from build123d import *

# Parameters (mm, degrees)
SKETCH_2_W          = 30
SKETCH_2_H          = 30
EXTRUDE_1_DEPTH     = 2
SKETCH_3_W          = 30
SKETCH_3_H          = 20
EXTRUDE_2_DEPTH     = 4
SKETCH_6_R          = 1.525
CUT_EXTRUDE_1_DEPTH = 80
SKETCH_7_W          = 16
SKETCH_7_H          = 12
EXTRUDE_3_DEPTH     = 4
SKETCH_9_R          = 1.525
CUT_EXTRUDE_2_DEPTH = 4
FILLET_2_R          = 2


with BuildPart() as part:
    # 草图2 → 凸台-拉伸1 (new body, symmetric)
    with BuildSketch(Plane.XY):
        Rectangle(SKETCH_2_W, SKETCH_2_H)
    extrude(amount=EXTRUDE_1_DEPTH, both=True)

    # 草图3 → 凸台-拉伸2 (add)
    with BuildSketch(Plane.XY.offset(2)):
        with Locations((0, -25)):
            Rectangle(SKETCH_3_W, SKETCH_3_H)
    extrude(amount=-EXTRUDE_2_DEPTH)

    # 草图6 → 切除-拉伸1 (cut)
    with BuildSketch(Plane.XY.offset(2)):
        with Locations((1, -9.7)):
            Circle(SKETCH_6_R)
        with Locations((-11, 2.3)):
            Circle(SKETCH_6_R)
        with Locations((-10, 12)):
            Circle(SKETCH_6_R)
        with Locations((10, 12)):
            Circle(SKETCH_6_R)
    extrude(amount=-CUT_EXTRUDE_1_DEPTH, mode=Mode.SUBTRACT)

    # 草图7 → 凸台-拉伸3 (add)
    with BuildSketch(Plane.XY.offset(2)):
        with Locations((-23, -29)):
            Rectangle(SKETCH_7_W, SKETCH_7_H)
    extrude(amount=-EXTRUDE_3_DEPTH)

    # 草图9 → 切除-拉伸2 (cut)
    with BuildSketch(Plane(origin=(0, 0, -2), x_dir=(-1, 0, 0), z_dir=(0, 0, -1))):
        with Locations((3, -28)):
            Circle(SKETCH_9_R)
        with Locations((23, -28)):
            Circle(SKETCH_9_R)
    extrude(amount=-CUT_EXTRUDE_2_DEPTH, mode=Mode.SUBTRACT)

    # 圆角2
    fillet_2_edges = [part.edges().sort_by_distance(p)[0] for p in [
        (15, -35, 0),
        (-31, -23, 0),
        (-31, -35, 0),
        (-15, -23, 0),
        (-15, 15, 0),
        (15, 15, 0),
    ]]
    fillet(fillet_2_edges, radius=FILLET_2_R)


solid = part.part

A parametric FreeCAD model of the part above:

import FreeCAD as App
import Part
import Sketcher
Q = App.Units.Quantity


def edges_at(feature, points):
    """Names of the edges that pass closest to the given points."""
    edges = feature.Shape.Edges
    near = lambda p: min(range(len(edges)), key=lambda i: edges[i].distToShape(Part.Vertex(*p))[0])
    return sorted({f"Edge{near(p) + 1}" for p in points})


def add_polygon(sketch, points):
    """Adds a closed chain of lines whose ends are joined by coincident constraints."""
    first, n = sketch.GeometryCount, len(points)
    for a, b in zip(points, points[1:] + points[:1]):
        sketch.addGeometry(Part.LineSegment(App.Vector(*a, 0), App.Vector(*b, 0)), False)
    for i in range(n):
        sketch.addConstraint(Sketcher.Constraint("Coincident", first + i, 2, first + (i + 1) % n, 1))

doc = App.newDocument("Part")
params = doc.addObject("Spreadsheet::Sheet", "Params")
for row, (alias, value) in enumerate([
    ("sketch1_width", "30 mm"),
    ("pad1_length", "4 mm"),
    ("sketch2_width", "30 mm"),
    ("sketch2_height", "20 mm"),
    ("pad2_length", "4 mm"),
    ("sketch3_diameter", "3.05 mm"),
    ("pocket1_length", "80 mm"),
    ("sketch4_width", "16 mm"),
    ("sketch4_height", "12 mm"),
    ("pad3_length", "4 mm"),
    ("sketch5_diameter", "3.05 mm"),
    ("pocket2_length", "4 mm"),
    ("fillet_radius", "2 mm"),
], start=1):
    params.set(f"A{row}", alias)
    params.set(f"B{row}", "=" + value)
    params.setAlias(f"B{row}", alias)

body = doc.addObject("PartDesign::Body", "Body")

sketch1 = doc.addObject("Sketcher::SketchObject", "Sketch")
body.addObject(sketch1)
sketch1.AttachmentSupport = (doc.XY_Plane, [""])
sketch1.MapMode = "FlatFace"
add_polygon(sketch1, [(-15, 15), (-15, -15), (15, -15), (15, 15)])
sketch1.addConstraint(Sketcher.Constraint("Vertical", 0))
sketch1.addConstraint(Sketcher.Constraint("Horizontal", 1))
sketch1.addConstraint(Sketcher.Constraint("Vertical", 2))
sketch1.addConstraint(Sketcher.Constraint("Horizontal", 3))
sketch1.addConstraint(Sketcher.Constraint("Symmetric", 0, 2, 2, 2, -1, 1))
sketch1.addConstraint(Sketcher.Constraint("Equal", 3, 0))
sketch1.addConstraint(Sketcher.Constraint("DistanceX", 1, 1, 1, 2, Q("30 mm")))
sketch1.setExpression("Constraints[10]", "Params.sketch1_width")
pad1 = doc.addObject("PartDesign::Pad", "Pad")
body.addObject(pad1)
pad1.Profile = sketch1
pad1.setExpression("Length", "Params.pad1_length")
pad1.Midplane = True

sketch2 = doc.addObject("Sketcher::SketchObject", "Sketch001")
body.addObject(sketch2)
sketch2.AttachmentSupport = (doc.XY_Plane, [""])
sketch2.MapMode = "FlatFace"
sketch2.AttachmentOffset = App.Placement(App.Vector(0, 0, 2), App.Rotation())
add_polygon(sketch2, [(-15, -15), (-15, -35), (15, -35), (15, -15)])
sketch2.addConstraint(Sketcher.Constraint("Vertical", 0))
sketch2.addConstraint(Sketcher.Constraint("Horizontal", 1))
sketch2.addConstraint(Sketcher.Constraint("Vertical", 2))
sketch2.addConstraint(Sketcher.Constraint("Horizontal", 3))
sketch2.addConstraint(Sketcher.Constraint("DistanceX", 1, 1, 1, 2, Q("30 mm")))
sketch2.addConstraint(Sketcher.Constraint("DistanceY", 0, 2, 0, 1, Q("20 mm")))
sketch2.addConstraint(Sketcher.Constraint("DistanceX", 0, 2, -1, 1, Q("15 mm")))
sketch2.addConstraint(Sketcher.Constraint("DistanceY", 0, 2, -1, 1, Q("35 mm")))
sketch2.setExpression("Constraints[8]", "Params.sketch2_width")
sketch2.setExpression("Constraints[9]", "Params.sketch2_height")
pad2 = doc.addObject("PartDesign::Pad", "Pad001")
body.addObject(pad2)
pad2.Profile = sketch2
pad2.setExpression("Length", "Params.pad2_length")
pad2.Reversed = True

sketch3 = doc.addObject("Sketcher::SketchObject", "Sketch002")
body.addObject(sketch3)
sketch3.AttachmentSupport = (doc.XY_Plane, [""])
sketch3.MapMode = "FlatFace"
sketch3.AttachmentOffset = App.Placement(App.Vector(0, 0, 2), App.Rotation())
sketch3.addGeometry(Part.Circle(App.Vector(1, -9.7, 0), App.Vector(0, 0, 1), 1.525), False)
sketch3.addGeometry(Part.Circle(App.Vector(-11, 2.3, 0), App.Vector(0, 0, 1), 1.525), False)
sketch3.addGeometry(Part.Circle(App.Vector(-10, 12, 0), App.Vector(0, 0, 1), 1.525), False)
sketch3.addGeometry(Part.Circle(App.Vector(10, 12, 0), App.Vector(0, 0, 1), 1.525), False)
sketch3.addConstraint(Sketcher.Constraint("Equal", 0, 1))
sketch3.addConstraint(Sketcher.Constraint("Equal", 1, 2))
sketch3.addConstraint(Sketcher.Constraint("Equal", 2, 3))
sketch3.addConstraint(Sketcher.Constraint("Symmetric", 2, 3, 3, 3, -2))
sketch3.addConstraint(Sketcher.Constraint("Diameter", 0, Q("3.05 mm")))
sketch3.addConstraint(Sketcher.Constraint("DistanceX", -1, 1, 0, 3, Q("1 mm")))
sketch3.addConstraint(Sketcher.Constraint("DistanceX", 1, 3, -1, 1, Q("11 mm")))
sketch3.addConstraint(Sketcher.Constraint("DistanceX", 2, 3, -1, 1, Q("10 mm")))
sketch3.addConstraint(Sketcher.Constraint("DistanceY", -1, 1, 2, 3, Q("12 mm")))
sketch3.addConstraint(Sketcher.Constraint("DistanceY", 0, 3, 1, 3, Q("12 mm")))
sketch3.addConstraint(Sketcher.Constraint("DistanceY", 0, 3, -1, 1, Q("9.7 mm")))
sketch3.setExpression("Constraints[4]", "Params.sketch3_diameter")
pocket1 = doc.addObject("PartDesign::Pocket", "Pocket")
body.addObject(pocket1)
pocket1.Profile = sketch3
pocket1.setExpression("Length", "Params.pocket1_length")

sketch4 = doc.addObject("Sketcher::SketchObject", "Sketch003")
body.addObject(sketch4)
sketch4.AttachmentSupport = (doc.XY_Plane, [""])
sketch4.MapMode = "FlatFace"
sketch4.AttachmentOffset = App.Placement(App.Vector(0, 0, 2), App.Rotation())
add_polygon(sketch4, [(-31, -23), (-31, -35), (-15, -35), (-15, -23)])
sketch4.addConstraint(Sketcher.Constraint("Vertical", 0))
sketch4.addConstraint(Sketcher.Constraint("Horizontal", 1))
sketch4.addConstraint(Sketcher.Constraint("Vertical", 2))
sketch4.addConstraint(Sketcher.Constraint("Horizontal", 3))
sketch4.addConstraint(Sketcher.Constraint("DistanceX", 1, 1, 1, 2, Q("16 mm")))
sketch4.addConstraint(Sketcher.Constraint("DistanceY", 0, 2, 0, 1, Q("12 mm")))
sketch4.addConstraint(Sketcher.Constraint("DistanceX", 0, 2, -1, 1, Q("31 mm")))
sketch4.addConstraint(Sketcher.Constraint("DistanceY", 0, 2, -1, 1, Q("35 mm")))
sketch4.setExpression("Constraints[8]", "Params.sketch4_width")
sketch4.setExpression("Constraints[9]", "Params.sketch4_height")
pad3 = doc.addObject("PartDesign::Pad", "Pad002")
body.addObject(pad3)
pad3.Profile = sketch4
pad3.setExpression("Length", "Params.pad3_length")
pad3.Reversed = True

sketch5 = doc.addObject("Sketcher::SketchObject", "Sketch004")
body.addObject(sketch5)
sketch5.AttachmentSupport = (doc.XY_Plane, [""])
sketch5.MapMode = "FlatFace"
sketch5.AttachmentOffset = App.Placement(App.Vector(0, 0, -2), App.Rotation())
sketch5.addGeometry(Part.Circle(App.Vector(-3, -28, 0), App.Vector(0, 0, 1), 1.525), False)
sketch5.addGeometry(Part.Circle(App.Vector(-23, -28, 0), App.Vector(0, 0, 1), 1.525), False)
sketch5.addConstraint(Sketcher.Constraint("Equal", 0, 1))
sketch5.addConstraint(Sketcher.Constraint("Horizontal", 0, 3, 1, 3))
sketch5.addConstraint(Sketcher.Constraint("Diameter", 0, Q("3.05 mm")))
sketch5.addConstraint(Sketcher.Constraint("DistanceX", 0, 3, -1, 1, Q("3 mm")))
sketch5.addConstraint(Sketcher.Constraint("DistanceY", 0, 3, -1, 1, Q("28 mm")))
sketch5.addConstraint(Sketcher.Constraint("DistanceX", 1, 3, -1, 1, Q("23 mm")))
sketch5.setExpression("Constraints[2]", "Params.sketch5_diameter")
pocket2 = doc.addObject("PartDesign::Pocket", "Pocket001")
body.addObject(pocket2)
pocket2.Profile = sketch5
pocket2.setExpression("Length", "Params.pocket2_length")
pocket2.Reversed = True
doc.recompute()

fillet = doc.addObject("PartDesign::Fillet", "Fillet")
body.addObject(fillet)
fillet.Base = (pocket2, edges_at(pocket2, [
    (15, -35, 0),
    (-31, -23, 0),
    (-31, -35, 0),
    (-15, -23, 0),
    (-15, 15, 0),
    (15, 15, 0),
]))
fillet.setExpression("Radius", "Params.fillet_radius")

doc.recompute()
